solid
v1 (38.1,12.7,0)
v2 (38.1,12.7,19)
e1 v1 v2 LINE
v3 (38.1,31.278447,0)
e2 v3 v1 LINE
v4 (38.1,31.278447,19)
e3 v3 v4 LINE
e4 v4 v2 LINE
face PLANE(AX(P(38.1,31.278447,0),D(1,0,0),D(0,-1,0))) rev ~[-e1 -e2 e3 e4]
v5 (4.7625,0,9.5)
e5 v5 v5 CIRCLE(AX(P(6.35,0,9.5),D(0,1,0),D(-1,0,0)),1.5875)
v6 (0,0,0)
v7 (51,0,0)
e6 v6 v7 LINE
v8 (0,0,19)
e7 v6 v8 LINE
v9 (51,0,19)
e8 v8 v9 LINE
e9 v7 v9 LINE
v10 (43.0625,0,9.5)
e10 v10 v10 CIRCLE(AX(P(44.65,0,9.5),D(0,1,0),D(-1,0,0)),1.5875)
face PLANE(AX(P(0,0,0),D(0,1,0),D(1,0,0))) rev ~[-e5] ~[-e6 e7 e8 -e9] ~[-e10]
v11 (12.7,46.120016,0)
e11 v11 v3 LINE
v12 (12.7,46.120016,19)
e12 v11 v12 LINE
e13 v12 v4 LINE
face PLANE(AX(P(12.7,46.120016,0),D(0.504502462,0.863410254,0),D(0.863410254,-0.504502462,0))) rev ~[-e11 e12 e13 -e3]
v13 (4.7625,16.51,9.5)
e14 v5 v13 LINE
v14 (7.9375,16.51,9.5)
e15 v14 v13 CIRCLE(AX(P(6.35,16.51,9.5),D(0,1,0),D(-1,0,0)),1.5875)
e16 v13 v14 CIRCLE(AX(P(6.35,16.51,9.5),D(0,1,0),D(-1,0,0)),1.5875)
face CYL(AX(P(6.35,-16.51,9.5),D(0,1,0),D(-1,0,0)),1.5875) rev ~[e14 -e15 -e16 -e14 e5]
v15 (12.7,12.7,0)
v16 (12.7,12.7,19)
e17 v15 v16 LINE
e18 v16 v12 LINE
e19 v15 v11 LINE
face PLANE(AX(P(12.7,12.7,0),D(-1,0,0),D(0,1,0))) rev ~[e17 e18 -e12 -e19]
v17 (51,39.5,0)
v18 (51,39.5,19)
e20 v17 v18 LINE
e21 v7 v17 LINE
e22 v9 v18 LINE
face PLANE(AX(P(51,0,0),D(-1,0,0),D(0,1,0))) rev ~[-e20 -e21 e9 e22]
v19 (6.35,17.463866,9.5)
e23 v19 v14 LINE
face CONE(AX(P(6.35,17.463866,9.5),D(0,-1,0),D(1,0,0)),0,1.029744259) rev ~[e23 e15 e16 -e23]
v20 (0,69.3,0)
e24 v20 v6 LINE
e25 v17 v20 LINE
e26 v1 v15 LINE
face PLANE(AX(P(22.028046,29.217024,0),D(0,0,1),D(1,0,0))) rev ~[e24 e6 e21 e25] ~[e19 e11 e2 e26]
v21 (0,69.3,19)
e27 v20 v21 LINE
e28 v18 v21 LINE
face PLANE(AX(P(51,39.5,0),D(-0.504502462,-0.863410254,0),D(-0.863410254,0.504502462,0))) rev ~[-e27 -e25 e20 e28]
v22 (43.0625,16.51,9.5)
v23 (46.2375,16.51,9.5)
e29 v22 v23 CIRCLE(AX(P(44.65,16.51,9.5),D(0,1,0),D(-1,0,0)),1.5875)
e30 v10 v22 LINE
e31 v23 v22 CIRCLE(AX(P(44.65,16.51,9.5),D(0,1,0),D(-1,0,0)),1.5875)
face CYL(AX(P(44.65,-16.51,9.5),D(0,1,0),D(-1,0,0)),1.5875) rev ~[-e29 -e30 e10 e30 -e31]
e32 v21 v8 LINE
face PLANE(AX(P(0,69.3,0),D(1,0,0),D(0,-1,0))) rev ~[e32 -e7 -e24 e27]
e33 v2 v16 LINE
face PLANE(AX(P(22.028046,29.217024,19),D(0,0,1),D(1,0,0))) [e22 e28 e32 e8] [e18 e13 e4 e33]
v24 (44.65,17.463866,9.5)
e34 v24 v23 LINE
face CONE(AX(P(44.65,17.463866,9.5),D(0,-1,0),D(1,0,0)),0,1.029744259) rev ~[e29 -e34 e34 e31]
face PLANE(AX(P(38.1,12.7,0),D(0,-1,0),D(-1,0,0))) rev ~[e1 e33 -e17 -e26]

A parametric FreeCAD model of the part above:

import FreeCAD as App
import Part
import Sketcher

V = App.Vector
Q = App.Units.Quantity


def add_polygon(sketch, points):
    """Adds a closed chain of lines whose ends are joined by coincident constraints."""
    first, n = sketch.GeometryCount, len(points)
    for a, b in zip(points, points[1:] + points[:1]):
        sketch.addGeometry(Part.LineSegment(App.Vector(*a, 0), App.Vector(*b, 0)), False)
    for i in range(n):
        sketch.addConstraint(Sketcher.Constraint("Coincident", first + i, 2, first + (i + 1) % n, 1))

doc = App.newDocument("Part")
body = doc.addObject("PartDesign::Body", "Body")

# Sketch on XY plane
sketch1 = body.newObject("Sketcher::SketchObject", "Sketch")
sketch1.AttachmentSupport = (doc.getObject("XY_Plane"), [""])
sketch1.MapMode = "FlatFace"
add_polygon(sketch1, [(0, 69), (0, 0), (51, 0), (51, 40)])  # lines 0-3
add_polygon(sketch1, [(38, 31), (38, 13), (13, 13), (13, 46)])  # lines 4-7
sketch1.addConstraint(Sketcher.Constraint("Vertical", 0))
sketch1.addConstraint(Sketcher.Constraint("Horizontal", 1))
sketch1.addConstraint(Sketcher.Constraint("Vertical", 2))
sketch1.addConstraint(Sketcher.Constraint("Vertical", 4))
sketch1.addConstraint(Sketcher.Constraint("Horizontal", 5))
sketch1.addConstraint(Sketcher.Constraint("Vertical", 6))
sketch1.addConstraint(Sketcher.Constraint("Coincident", 0, 2, -1, 1))
sketch1.addConstraint(Sketcher.Constraint("Parallel", 3, 7))
sketch1.addConstraint(Sketcher.Constraint("DistanceX", 5, 2, 5, 1, Q("1 in")))
sketch1.addConstraint(Sketcher.Constraint("DistanceX", -1, 1, 4, 2, Q("1.5 in")))
sketch1.addConstraint(Sketcher.Constraint("DistanceY", -1, 1, 4, 2, Q("0.5 in")))
sketch1.addConstraint(Sketcher.Constraint("DistanceX", 1, 1, 1, 2, Q("51 mm")))
sketch1.addConstraint(Sketcher.Constraint("DistanceY", 0, 2, 0, 1, Q("69.3 mm")))
sketch1.addConstraint(Sketcher.Constraint("DistanceY", 2, 1, 2, 2, Q("39.5 mm")))
sketch1.addConstraint(Sketcher.Constraint("DistanceY", 4, 2, 4, 1, Q("18.578447 mm")))
pad1 = body.newObject("PartDesign::Pad", "Pad")
pad1.Profile = sketch1
pad1.Length = 19

# Sketch on XZ plane
sketch2 = body.newObject("Sketcher::SketchObject", "Sketch001")
sketch2.AttachmentSupport = (doc.getObject("XZ_Plane"), [""])
sketch2.MapMode = "FlatFace"
sketch2.addGeometry(Part.Circle(V(6.3, 9.5, 0), V(0, 0, 1), 1.1), False)
sketch2.addGeometry(Part.Circle(V(44.6, 9.5, 0), V(0, 0, 1), 1.1), False)
sketch2.addConstraint(Sketcher.Constraint("Equal", 0, 1))
sketch2.addConstraint(Sketcher.Constraint("Horizontal", 0, 3, 1, 3))
sketch2.addConstraint(Sketcher.Constraint("Diameter", 0, Q("0.085 in")))
sketch2.addConstraint(Sketcher.Constraint("DistanceX", -1, 1, 0, 3, Q("0.25 in")))
sketch2.addConstraint(Sketcher.Constraint("DistanceY", -1, 1, 0, 3, Q("9.5 mm")))
sketch2.addConstraint(Sketcher.Constraint("DistanceX", -1, 1, 1, 3, Q("44.65 mm")))
pad2 = body.newObject("PartDesign::Pad", "Pad001")
pad2.Profile = sketch2
pad2.Length = Q("0.75 in")
pad2.Reversed = True

# Sketch on XZ plane
sketch3 = body.newObject("Sketcher::SketchObject", "Sketch002")
sketch3.AttachmentSupport = (doc.getObject("XZ_Plane"), [""])
sketch3.MapMode = "FlatFace"
sketch3.addGeometry(Part.Circle(V(6.3, 9.5, 0), V(0, 0, 1), 1.6), False)
sketch3.addGeometry(Part.Circle(V(44.6, 9.5, 0), V(0, 0, 1), 1.6), False)
sketch3.addConstraint(Sketcher.Constraint("Equal", 0, 1))
sketch3.addConstraint(Sketcher.Constraint("Horizontal", 0, 3, 1, 3))
sketch3.addConstraint(Sketcher.Constraint("Diameter", 0, Q("0.125 in")))
sketch3.addConstraint(Sketcher.Constraint("DistanceX", -1, 1, 0, 3, Q("0.25 in")))
sketch3.addConstraint(Sketcher.Constraint("DistanceY", -1, 1, 0, 3, Q("9.5 mm")))
sketch3.addConstraint(Sketcher.Constraint("DistanceX", -1, 1, 1, 3, Q("44.65 mm")))
doc.recompute()
hole = body.newObject("PartDesign::Hole", "Hole")
hole.Profile = sketch3
hole.ThreadType = "None"
hole.Diameter = Q("0.125 in")
hole.DepthType = "Dimension"
hole.Depth = Q("0.65 in")
hole.DrillPoint = "Angled"
hole.DrillPointAngle = 118

doc.recompute()
